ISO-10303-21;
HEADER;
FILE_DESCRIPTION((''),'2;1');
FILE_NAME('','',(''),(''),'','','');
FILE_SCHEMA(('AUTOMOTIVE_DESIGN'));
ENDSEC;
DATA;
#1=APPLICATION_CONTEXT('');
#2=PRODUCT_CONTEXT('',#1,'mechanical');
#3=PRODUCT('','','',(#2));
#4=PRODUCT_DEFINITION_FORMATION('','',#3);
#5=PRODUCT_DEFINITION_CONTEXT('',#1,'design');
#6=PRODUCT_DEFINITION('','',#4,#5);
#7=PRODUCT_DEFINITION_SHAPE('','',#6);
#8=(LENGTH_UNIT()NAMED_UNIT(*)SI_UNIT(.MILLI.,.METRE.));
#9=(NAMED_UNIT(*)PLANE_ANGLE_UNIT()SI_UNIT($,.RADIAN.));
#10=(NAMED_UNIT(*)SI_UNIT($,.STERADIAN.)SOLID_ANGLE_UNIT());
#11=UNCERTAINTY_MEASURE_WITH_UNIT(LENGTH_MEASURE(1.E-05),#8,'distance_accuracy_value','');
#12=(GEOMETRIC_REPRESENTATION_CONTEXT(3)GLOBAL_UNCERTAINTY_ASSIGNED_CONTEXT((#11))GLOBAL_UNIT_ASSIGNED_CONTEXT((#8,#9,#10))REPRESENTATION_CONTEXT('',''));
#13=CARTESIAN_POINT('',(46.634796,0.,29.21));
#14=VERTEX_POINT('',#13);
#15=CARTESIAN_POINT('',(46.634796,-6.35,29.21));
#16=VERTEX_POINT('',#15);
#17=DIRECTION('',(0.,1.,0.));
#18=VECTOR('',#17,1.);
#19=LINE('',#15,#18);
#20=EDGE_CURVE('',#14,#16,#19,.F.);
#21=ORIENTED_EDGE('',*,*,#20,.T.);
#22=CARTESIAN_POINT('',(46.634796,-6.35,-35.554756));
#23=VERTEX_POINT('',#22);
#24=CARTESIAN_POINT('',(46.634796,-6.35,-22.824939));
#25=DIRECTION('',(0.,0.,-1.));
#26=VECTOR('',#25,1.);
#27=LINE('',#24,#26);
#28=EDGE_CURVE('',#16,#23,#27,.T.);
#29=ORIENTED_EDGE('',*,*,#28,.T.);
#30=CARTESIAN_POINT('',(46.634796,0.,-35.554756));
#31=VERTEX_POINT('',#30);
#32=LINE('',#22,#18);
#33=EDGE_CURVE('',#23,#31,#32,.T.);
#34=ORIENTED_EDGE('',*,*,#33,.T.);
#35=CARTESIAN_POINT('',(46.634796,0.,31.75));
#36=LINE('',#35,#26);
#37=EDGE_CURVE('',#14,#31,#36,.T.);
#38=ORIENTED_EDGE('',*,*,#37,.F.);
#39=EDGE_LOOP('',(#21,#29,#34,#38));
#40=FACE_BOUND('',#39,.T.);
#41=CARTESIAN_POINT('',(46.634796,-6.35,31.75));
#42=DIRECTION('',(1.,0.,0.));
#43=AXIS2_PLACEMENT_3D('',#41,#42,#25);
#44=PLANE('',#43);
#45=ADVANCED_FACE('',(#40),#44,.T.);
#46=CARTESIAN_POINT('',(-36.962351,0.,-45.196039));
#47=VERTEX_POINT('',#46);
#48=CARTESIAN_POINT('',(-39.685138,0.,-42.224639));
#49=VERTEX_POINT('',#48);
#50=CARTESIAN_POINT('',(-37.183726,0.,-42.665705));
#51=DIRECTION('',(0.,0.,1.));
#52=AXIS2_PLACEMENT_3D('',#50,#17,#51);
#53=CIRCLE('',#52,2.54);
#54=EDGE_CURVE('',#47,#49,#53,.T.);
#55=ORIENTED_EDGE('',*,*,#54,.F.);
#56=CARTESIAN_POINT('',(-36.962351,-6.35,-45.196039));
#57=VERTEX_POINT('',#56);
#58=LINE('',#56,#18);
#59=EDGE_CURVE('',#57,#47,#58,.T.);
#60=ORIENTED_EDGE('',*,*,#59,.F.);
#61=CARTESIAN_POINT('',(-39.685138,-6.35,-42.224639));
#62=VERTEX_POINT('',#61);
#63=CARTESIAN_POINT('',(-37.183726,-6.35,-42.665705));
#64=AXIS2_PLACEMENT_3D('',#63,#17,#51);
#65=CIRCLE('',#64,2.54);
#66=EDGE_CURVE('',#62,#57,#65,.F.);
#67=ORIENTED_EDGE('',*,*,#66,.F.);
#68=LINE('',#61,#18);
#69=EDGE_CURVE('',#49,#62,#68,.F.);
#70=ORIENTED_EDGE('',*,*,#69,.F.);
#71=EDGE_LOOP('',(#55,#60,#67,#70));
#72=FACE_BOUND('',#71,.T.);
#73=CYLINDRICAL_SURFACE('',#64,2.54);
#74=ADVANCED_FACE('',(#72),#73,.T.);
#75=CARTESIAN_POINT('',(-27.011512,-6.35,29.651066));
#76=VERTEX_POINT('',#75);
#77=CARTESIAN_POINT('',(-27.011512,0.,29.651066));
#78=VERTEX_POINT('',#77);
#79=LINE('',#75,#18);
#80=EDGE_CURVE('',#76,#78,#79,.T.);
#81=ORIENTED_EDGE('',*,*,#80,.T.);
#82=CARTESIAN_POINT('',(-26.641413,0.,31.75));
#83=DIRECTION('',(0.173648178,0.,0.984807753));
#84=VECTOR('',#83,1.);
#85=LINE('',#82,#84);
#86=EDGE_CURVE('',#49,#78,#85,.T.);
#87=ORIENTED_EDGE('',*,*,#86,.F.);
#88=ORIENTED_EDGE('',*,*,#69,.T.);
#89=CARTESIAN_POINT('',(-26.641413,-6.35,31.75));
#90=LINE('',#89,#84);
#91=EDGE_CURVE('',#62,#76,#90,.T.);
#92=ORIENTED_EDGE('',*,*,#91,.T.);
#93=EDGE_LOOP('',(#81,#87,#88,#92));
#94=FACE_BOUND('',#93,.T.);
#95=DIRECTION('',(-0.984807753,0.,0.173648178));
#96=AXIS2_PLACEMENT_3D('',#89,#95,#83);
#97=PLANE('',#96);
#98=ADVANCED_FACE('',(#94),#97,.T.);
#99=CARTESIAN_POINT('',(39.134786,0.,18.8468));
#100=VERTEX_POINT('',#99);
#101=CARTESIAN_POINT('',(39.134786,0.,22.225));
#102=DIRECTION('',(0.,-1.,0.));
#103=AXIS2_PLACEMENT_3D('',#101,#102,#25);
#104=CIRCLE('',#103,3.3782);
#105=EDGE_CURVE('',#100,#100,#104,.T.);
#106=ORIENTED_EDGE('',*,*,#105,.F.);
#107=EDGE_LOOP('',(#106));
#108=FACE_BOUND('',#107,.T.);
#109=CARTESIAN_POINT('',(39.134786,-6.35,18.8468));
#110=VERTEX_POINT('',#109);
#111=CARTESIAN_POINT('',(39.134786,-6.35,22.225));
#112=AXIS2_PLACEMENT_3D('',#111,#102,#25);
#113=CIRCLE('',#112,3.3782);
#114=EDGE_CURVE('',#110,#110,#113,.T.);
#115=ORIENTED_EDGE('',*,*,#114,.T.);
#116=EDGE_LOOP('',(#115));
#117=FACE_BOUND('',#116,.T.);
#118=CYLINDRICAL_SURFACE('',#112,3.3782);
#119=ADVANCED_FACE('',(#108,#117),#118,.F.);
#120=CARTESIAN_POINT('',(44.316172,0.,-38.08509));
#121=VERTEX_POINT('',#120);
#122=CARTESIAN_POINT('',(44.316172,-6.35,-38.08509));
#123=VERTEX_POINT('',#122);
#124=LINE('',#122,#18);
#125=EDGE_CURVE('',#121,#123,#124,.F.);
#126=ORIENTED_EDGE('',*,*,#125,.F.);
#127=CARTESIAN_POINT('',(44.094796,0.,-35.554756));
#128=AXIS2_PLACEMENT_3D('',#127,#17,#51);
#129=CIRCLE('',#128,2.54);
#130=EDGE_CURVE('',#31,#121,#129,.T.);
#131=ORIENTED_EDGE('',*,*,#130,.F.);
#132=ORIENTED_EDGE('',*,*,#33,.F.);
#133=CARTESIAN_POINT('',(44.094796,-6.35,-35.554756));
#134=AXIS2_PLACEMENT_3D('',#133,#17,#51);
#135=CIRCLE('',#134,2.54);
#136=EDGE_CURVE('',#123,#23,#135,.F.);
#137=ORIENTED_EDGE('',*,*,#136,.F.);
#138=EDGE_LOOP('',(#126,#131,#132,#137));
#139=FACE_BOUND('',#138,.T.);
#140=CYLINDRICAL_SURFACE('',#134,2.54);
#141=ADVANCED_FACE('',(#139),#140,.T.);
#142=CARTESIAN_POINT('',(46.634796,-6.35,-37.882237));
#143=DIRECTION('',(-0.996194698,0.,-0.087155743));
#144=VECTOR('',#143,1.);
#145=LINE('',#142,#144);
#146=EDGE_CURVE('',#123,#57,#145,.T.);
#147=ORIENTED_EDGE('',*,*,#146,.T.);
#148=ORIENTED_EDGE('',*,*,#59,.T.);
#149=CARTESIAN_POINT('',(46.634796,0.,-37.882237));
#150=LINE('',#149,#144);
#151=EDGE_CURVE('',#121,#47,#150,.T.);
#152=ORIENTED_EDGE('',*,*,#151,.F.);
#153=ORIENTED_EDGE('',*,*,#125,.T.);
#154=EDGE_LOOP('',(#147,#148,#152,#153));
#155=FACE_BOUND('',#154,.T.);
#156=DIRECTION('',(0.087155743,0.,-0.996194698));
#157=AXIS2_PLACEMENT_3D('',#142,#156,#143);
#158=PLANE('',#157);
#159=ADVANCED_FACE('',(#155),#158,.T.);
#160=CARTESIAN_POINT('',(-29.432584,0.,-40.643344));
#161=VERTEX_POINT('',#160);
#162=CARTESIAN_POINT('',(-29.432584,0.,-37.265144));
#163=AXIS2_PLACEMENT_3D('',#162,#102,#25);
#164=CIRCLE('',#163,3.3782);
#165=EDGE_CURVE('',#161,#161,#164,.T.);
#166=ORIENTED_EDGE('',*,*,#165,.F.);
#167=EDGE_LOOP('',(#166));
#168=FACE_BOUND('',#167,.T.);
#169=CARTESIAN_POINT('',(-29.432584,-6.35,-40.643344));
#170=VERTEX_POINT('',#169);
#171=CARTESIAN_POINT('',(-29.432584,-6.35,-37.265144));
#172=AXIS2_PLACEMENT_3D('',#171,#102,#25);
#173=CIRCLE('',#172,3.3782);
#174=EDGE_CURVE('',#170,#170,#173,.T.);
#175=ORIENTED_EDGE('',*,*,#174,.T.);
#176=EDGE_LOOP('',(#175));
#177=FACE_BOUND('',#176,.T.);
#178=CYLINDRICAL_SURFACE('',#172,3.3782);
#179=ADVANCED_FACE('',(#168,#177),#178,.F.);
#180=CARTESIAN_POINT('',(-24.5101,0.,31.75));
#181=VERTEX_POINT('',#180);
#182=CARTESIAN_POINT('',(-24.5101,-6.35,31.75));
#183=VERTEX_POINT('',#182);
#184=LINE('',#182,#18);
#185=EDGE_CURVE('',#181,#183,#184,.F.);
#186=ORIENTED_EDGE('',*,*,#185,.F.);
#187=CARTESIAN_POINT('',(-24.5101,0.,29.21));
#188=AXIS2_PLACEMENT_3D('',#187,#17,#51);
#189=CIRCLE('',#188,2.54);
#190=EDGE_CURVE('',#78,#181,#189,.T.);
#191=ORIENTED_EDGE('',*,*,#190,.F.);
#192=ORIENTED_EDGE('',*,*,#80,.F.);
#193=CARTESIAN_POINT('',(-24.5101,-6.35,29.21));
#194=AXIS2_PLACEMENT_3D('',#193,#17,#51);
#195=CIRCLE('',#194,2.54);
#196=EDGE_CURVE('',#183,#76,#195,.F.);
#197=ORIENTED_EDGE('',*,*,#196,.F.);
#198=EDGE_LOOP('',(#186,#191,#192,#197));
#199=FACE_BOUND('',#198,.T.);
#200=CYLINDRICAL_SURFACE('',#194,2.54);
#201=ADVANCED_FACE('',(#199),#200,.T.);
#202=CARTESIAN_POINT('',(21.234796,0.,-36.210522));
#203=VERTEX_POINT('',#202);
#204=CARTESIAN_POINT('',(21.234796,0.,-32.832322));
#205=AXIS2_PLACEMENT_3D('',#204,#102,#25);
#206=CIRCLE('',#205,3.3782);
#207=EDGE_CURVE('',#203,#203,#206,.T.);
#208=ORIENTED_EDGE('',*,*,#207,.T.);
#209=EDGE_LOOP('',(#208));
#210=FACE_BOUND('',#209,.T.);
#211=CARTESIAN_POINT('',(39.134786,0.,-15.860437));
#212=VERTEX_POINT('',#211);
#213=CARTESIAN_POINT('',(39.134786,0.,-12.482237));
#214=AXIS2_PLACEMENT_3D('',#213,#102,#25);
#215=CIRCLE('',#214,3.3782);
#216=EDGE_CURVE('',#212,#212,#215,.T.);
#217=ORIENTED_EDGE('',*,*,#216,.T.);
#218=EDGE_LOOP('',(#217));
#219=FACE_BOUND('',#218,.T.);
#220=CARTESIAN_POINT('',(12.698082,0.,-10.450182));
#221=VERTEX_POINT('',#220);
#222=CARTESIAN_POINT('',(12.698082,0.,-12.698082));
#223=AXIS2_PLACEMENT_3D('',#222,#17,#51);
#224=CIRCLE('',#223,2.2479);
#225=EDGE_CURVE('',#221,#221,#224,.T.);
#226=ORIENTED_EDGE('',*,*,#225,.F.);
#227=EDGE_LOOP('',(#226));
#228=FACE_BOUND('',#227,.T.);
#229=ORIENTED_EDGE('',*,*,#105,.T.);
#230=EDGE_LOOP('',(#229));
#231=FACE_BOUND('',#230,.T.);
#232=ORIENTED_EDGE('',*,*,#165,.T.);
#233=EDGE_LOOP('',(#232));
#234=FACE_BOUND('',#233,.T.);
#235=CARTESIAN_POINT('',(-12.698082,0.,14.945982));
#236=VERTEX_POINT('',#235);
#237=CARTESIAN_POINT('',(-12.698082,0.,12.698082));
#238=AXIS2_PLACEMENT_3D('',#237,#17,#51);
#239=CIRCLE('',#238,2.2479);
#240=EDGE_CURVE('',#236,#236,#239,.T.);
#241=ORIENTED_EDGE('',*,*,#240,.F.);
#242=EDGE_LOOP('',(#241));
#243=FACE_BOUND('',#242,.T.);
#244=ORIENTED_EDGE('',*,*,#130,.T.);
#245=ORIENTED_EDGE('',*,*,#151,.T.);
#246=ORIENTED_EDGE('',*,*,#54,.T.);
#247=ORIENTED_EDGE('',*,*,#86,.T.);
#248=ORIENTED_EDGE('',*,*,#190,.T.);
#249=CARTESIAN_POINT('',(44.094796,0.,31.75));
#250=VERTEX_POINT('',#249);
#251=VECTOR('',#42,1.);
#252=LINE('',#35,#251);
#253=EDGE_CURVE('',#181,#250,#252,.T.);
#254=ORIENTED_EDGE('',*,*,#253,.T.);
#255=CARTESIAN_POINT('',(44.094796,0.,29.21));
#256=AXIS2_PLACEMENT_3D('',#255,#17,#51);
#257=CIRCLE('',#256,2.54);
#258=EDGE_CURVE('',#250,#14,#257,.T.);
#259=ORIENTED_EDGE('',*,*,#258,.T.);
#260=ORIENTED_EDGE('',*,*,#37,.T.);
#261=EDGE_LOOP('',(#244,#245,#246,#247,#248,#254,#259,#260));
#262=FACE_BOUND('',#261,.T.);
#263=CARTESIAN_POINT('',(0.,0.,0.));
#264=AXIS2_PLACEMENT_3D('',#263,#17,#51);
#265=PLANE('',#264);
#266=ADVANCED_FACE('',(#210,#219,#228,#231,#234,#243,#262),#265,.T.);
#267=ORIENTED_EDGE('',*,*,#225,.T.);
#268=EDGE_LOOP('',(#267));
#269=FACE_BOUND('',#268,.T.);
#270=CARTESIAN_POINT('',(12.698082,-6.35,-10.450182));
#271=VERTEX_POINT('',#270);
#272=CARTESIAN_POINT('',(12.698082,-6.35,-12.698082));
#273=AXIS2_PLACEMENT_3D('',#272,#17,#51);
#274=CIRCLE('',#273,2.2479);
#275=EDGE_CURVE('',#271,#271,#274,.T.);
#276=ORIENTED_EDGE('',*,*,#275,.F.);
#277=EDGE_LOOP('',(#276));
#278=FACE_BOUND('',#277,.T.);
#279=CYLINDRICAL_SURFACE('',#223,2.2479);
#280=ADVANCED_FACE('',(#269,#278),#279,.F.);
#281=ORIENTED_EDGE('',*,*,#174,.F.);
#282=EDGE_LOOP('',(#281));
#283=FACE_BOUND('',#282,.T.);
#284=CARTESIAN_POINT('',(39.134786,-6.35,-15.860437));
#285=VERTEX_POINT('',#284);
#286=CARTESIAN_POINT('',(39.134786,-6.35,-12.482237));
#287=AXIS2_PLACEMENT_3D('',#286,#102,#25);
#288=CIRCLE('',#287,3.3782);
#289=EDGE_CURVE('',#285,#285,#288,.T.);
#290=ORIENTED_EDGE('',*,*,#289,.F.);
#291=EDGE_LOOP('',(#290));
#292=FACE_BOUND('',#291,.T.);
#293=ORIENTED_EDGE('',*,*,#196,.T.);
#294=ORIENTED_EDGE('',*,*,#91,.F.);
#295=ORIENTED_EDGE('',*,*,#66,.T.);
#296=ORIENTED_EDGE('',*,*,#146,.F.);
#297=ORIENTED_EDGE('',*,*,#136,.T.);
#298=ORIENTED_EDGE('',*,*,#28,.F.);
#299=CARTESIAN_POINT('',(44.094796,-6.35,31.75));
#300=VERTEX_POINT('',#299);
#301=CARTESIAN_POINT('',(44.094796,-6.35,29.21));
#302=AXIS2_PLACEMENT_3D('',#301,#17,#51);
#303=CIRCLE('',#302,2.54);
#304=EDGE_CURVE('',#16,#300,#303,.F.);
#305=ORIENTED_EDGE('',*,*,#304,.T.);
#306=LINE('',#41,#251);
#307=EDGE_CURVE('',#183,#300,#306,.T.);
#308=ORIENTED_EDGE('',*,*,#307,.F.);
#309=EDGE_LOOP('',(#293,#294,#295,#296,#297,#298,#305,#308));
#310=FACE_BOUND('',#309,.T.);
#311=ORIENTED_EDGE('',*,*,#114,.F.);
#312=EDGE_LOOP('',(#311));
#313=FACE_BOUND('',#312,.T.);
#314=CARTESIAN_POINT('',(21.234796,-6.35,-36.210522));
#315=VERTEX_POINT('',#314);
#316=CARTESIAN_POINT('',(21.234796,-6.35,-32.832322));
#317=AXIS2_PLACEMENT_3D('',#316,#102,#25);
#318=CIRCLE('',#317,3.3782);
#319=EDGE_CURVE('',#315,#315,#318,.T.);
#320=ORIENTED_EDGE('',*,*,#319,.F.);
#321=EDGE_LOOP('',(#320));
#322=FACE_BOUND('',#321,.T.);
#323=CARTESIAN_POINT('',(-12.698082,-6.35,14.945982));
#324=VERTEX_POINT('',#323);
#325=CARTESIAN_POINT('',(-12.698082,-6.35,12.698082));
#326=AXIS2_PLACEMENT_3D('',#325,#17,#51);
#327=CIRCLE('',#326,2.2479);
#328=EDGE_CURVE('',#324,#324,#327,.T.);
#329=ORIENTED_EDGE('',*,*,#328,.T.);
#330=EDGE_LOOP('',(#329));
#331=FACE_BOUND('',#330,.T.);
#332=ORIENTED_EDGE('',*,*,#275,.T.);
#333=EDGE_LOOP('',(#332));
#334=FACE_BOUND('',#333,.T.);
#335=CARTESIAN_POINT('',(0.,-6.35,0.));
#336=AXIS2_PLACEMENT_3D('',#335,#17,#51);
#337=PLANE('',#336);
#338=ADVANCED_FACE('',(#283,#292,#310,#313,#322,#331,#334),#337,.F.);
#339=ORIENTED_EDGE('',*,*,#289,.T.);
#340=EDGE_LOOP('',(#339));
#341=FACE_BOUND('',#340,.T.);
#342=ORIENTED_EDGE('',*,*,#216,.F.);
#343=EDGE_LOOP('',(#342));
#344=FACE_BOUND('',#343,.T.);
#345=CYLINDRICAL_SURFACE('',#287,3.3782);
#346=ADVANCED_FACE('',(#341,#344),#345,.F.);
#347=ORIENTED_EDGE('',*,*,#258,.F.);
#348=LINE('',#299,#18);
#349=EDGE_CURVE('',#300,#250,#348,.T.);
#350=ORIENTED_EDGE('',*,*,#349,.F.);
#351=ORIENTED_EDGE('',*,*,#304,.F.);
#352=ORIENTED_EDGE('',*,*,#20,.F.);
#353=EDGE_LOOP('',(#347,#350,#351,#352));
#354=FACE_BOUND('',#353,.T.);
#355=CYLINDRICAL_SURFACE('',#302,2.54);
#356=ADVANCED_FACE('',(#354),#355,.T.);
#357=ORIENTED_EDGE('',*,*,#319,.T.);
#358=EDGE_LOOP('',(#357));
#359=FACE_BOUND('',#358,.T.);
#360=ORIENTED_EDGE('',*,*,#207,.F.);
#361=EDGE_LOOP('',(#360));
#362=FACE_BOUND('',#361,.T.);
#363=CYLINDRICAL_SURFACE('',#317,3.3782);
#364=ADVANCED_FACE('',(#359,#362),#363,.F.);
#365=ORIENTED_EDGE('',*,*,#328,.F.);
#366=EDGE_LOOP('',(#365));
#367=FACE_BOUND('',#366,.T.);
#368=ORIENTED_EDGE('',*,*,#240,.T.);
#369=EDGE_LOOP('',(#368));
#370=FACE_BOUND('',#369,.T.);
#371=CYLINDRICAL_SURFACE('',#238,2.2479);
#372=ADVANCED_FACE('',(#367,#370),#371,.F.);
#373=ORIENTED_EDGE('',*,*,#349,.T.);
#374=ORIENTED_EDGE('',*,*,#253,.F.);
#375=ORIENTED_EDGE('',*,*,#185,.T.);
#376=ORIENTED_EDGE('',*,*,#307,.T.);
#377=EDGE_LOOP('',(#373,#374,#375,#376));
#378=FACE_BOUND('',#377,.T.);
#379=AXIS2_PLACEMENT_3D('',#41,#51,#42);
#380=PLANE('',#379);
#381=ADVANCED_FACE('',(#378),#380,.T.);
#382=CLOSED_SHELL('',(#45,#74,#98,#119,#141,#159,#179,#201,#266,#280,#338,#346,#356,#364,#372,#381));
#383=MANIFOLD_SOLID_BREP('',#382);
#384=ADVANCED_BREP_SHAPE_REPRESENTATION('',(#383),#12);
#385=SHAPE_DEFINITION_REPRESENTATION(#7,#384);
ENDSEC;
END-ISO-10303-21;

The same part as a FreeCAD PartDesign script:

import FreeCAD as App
import Part
import Sketcher

V = App.Vector
Q = App.Units.Quantity


def edges_at(feature, points):
    """Names of the edges that pass closest to the given points."""
    edges = feature.Shape.Edges
    near = lambda p: min(range(len(edges)), key=lambda i: edges[i].distToShape(Part.Vertex(*p))[0])
    return sorted({f"Edge{near(p) + 1}" for p in points})


def add_polygon(sketch, points):
    """Adds a closed chain of lines whose ends are joined by coincident constraints."""
    first, n = sketch.GeometryCount, len(points)
    for a, b in zip(points, points[1:] + points[:1]):
        sketch.addGeometry(Part.LineSegment(App.Vector(*a, 0), App.Vector(*b, 0)), False)
    for i in range(n):
        sketch.addConstraint(Sketcher.Constraint("Coincident", first + i, 2, first + (i + 1) % n, 1))

doc = App.newDocument("Part")
body = doc.addObject("PartDesign::Body", "Body")

# Sketch on XZ plane
sketch1 = body.newObject("Sketcher::SketchObject", "Sketch")
sketch1.AttachmentSupport = (doc.getObject("XZ_Plane"), [""])
sketch1.MapMode = "FlatFace"
add_polygon(sketch1, [(47, 32), (47, -38), (-40, -45), (-27, 32)])  # lines 0-3
sketch1.addConstraint(Sketcher.Constraint("Vertical", 0))
sketch1.addConstraint(Sketcher.Constraint("Horizontal", 3))
sketch1.addConstraint(Sketcher.Constraint("Angle", 1, Q("-175 deg")))
sketch1.addConstraint(Sketcher.Constraint("Angle", 2, Q("80 deg")))
sketch1.addConstraint(Sketcher.Constraint("DistanceY", -1, 1, 2, 2, Q("1.25 in")))
sketch1.addConstraint(Sketcher.Constraint("DistanceX", 3, 1, 3, 2, 73.276209))
sketch1.addConstraint(Sketcher.Constraint("Distance", 2, 78.426009))
sketch1.addConstraint(Sketcher.Constraint("DistanceX", -1, 1, 0, 2, 46.634796))
pad1 = body.newObject("PartDesign::Pad", "Pad")
pad1.Profile = sketch1
pad1.Length = Q("0.25 in")

# Sketch on XZ plane
sketch2 = body.newObject("Sketcher::SketchObject", "Sketch001")
sketch2.AttachmentSupport = (doc.getObject("XZ_Plane"), [""])
sketch2.MapMode = "FlatFace"
sketch2.AttachmentOffset = App.Placement(V(0, 0, 0.25 * 25.4), App.Rotation())
sketch2.addGeometry(Part.Circle(V(21.2, -32.8, 0), V(0, 0, 1), 3.4), False)
sketch2.addGeometry(Part.Circle(V(39.1, 22.2, 0), V(0, 0, 1), 3.4), False)
sketch2.addGeometry(Part.Circle(V(39.1, -12.5, 0), V(0, 0, 1), 3.4), False)
sketch2.addGeometry(Part.Circle(V(-29.4, -37.3, 0), V(0, 0, 1), 3.4), False)
sketch2.addConstraint(Sketcher.Constraint("Equal", 0, 1))
sketch2.addConstraint(Sketcher.Constraint("Equal", 1, 2))
sketch2.addConstraint(Sketcher.Constraint("Equal", 2, 3))
sketch2.addConstraint(Sketcher.Constraint("Vertical", 1, 3, 2, 3))
sketch2.addConstraint(Sketcher.Constraint("Diameter", 0, Q("0.266 in")))
sketch2.addConstraint(Sketcher.Constraint("DistanceY", -1, 1, 1, 3, Q("0.875 in")))
sketch2.addConstraint(Sketcher.Constraint("DistanceX", 0, 3, 1, 3, 17.89999))
sketch2.addConstraint(Sketcher.Constraint("DistanceX", 3, 3, 0, 3, 50.66738))
sketch2.addConstraint(Sketcher.Constraint("DistanceY", 3, 3, 0, 3, 4.432821))
sketch2.addConstraint(Sketcher.Constraint("DistanceX", -1, 1, 0, 3, 21.234796))
sketch2.addConstraint(Sketcher.Constraint("DistanceY", 0, 3, -1, 1, 32.832322))
sketch2.addConstraint(Sketcher.Constraint("DistanceY", 2, 3, -1, 1, 12.482237))
doc.recompute()
hole = body.newObject("PartDesign::Hole", "Hole")
hole.Profile = sketch2
hole.ThreadType = "None"
hole.Diameter = Q("0.266 in")
hole.DepthType = "ThroughAll"

# Sketch on XZ plane
sketch3 = body.newObject("Sketcher::SketchObject", "Sketch002")
sketch3.AttachmentSupport = (doc.getObject("XZ_Plane"), [""])
sketch3.MapMode = "FlatFace"
sketch3.addGeometry(Part.Circle(V(12.7, -12.7, 0), V(0, 0, 1), 2.2), False)
sketch3.addGeometry(Part.Circle(V(-12.7, 12.7, 0), V(0, 0, 1), 2.2), False)
sketch3.addConstraint(Sketcher.Constraint("Equal", 0, 1))
sketch3.addConstraint(Sketcher.Constraint("Symmetric", 0, 3, 1, 3, -1, 1))
sketch3.addConstraint(Sketcher.Constraint("Diameter", 0, Q("0.177 in")))
sketch3.addConstraint(Sketcher.Constraint("DistanceX", -1, 1, 0, 3, 12.698082))
sketch3.addConstraint(Sketcher.Constraint("DistanceY", 0, 3, -1, 1, 12.698082))
doc.recompute()
hole2 = body.newObject("PartDesign::Hole", "Hole001")
hole2.Profile = sketch3
hole2.ThreadType = "None"
hole2.Diameter = Q("0.177 in")
hole2.DepthType = "ThroughAll"
hole2.Reversed = True
doc.recompute()

fillet = body.newObject("PartDesign::Fillet", "Fillet")
fillet.Base = (hole2, edges_at(hole2, [
    (46.635, -3.175, 31.75),
    (-26.641, -3.175, 31.75),
    (-40.26, -3.175, -45.485),
    (46.635, -3.175, -37.882),
]))
fillet.Radius = Q("0.1 in")

doc.recompute()
